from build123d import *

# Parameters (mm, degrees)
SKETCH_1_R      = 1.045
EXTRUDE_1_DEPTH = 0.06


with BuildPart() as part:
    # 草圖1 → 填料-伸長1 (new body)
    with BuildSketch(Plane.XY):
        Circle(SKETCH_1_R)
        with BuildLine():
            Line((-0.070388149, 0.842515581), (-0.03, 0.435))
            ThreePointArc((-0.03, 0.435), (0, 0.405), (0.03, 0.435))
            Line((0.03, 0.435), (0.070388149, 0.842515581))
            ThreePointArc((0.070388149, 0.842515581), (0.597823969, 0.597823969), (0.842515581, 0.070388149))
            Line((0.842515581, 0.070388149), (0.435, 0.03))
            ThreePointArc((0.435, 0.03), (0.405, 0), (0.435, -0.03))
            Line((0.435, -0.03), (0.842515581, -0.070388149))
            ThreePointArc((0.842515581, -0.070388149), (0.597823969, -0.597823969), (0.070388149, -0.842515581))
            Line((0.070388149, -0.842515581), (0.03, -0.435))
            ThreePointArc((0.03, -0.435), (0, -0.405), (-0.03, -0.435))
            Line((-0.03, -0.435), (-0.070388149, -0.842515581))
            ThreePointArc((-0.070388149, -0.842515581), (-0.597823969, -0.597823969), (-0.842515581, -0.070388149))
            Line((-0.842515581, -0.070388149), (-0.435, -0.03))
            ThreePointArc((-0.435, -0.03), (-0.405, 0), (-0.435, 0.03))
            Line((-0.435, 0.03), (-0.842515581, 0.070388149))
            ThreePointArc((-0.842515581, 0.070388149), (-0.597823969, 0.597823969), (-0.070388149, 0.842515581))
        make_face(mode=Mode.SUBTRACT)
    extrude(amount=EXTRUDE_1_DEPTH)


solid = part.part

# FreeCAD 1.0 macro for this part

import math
import FreeCAD as App
import Part
import Sketcher
from FreeCAD import Vector
Q = App.Units.Quantity

doc = App.newDocument("Part")
params = doc.addObject("Spreadsheet::Sheet", "Params")
for row, (alias, value) in enumerate([
    ("sketch1_diameter", "2.09 mm"),
    ("sketch1_radius", "0.03 mm"),
    ("pad1_length", "0.06 mm"),
], start=1):
    params.set(f"A{row}", alias)
    params.set(f"B{row}", "=" + value)
    params.setAlias(f"B{row}", alias)

body = doc.addObject("PartDesign::Body", "Body")

sketch1 = body.newObject("Sketcher::SketchObject", "Sketch")
sketch1.AttachmentSupport = (doc.getObject("XY_Plane"), [""])
sketch1.MapMode = "FlatFace"
sketch1.addGeometry([
    Part.Circle(Vector(0, 0, 0), Vector(0, 0, 1), 1.045),
    Part.ArcOfCircle(Part.Circle(Vector(0, 0, 0), Vector(0, 0, 1), 0.845), math.radians(95), math.radians(175)),
    Part.LineSegment(Vector(-0.07, 0.843, 0), Vector(-0.03, 0.435, 0)),
    Part.ArcOfCircle(Part.Circle(Vector(0, 0.435, 0), Vector(0, 0, 1), 0.03), math.radians(180), math.radians(360)),
    Part.LineSegment(Vector(0.03, 0.435, 0), Vector(0.07, 0.843, 0)),
    Part.ArcOfCircle(Part.Circle(Vector(0, 0, 0), Vector(0, 0, 1), 0.845), math.radians(5), math.radians(85)),
    Part.LineSegment(Vector(0.843, 0.07, 0), Vector(0.435, 0.03, 0)),
    Part.ArcOfCircle(Part.Circle(Vector(0.435, 0, 0), Vector(0, 0, 1), 0.03), math.radians(90), math.radians(270)),
    Part.LineSegment(Vector(0.435, -0.03, 0), Vector(0.843, -0.07, 0)),
    Part.ArcOfCircle(Part.Circle(Vector(0, 0, 0), Vector(0, 0, 1), 0.845), math.radians(-85), math.radians(-5)),
    Part.LineSegment(Vector(0.07, -0.843, 0), Vector(0.03, -0.435, 0)),
    Part.ArcOfCircle(Part.Circle(Vector(0, -0.435, 0), Vector(0, 0, 1), 0.03), math.radians(0), math.radians(180)),
    Part.LineSegment(Vector(-0.03, -0.435, 0), Vector(-0.07, -0.843, 0)),
    Part.ArcOfCircle(Part.Circle(Vector(0, 0, 0), Vector(0, 0, 1), 0.845), math.radians(-175), math.radians(-95)),
    Part.LineSegment(Vector(-0.843, -0.07, 0), Vector(-0.435, -0.03, 0)),
    Part.ArcOfCircle(Part.Circle(Vector(-0.435, 0, 0), Vector(0, 0, 1), 0.03), math.radians(-90), math.radians(90)),
    Part.LineSegment(Vector(-0.435, 0.03, 0), Vector(-0.843, 0.07, 0)),
], False)
sketch1.addConstraint([
    Sketcher.Constraint("Coincident", 1, 1, 2, 1),
    Sketcher.Constraint("Coincident", 2, 2, 3, 1),
    Sketcher.Constraint("Coincident", 3, 2, 4, 1),
    Sketcher.Constraint("Coincident", 4, 2, 5, 2),
    Sketcher.Constraint("Coincident", 5, 1, 6, 1),
    Sketcher.Constraint("Coincident", 6, 2, 7, 1),
    Sketcher.Constraint("Coincident", 7, 2, 8, 1),
    Sketcher.Constraint("Coincident", 8, 2, 9, 2),
    Sketcher.Constraint("Coincident", 9, 1, 10, 1),
    Sketcher.Constraint("Coincident", 10, 2, 11, 1),
    Sketcher.Constraint("Coincident", 11, 2, 12, 1),
    Sketcher.Constraint("Coincident", 12, 2, 13, 2),
    Sketcher.Constraint("Coincident", 13, 1, 14, 1),
    Sketcher.Constraint("Coincident", 14, 2, 15, 1),
    Sketcher.Constraint("Coincident", 15, 2, 16, 1),
    Sketcher.Constraint("Coincident", 16, 2, 1, 2),
    Sketcher.Constraint("Coincident", 0, 3, -1, 1),
    Sketcher.Constraint("Coincident", 1, 3, -1, 1),
    Sketcher.Constraint("Coincident", 5, 3, -1, 1),
    Sketcher.Constraint("Coincident", 9, 3, -1, 1),
    Sketcher.Constraint("Coincident", 13, 3, -1, 1),
    Sketcher.Constraint("Equal", 1, 5),
    Sketcher.Constraint("Equal", 3, 7),
    Sketcher.Constraint("Equal", 5, 9),
    Sketcher.Constraint("Equal", 7, 11),
    Sketcher.Constraint("Equal", 9, 13),
    Sketcher.Constraint("Equal", 11, 15),
    Sketcher.Constraint("Symmetric", 3, 3, 11, 3, -1, 1),
    Sketcher.Constraint("Symmetric", 7, 3, 15, 3, -1, 1),
    Sketcher.Constraint("Symmetric", 2, 2, 3, 2, -2),
    Sketcher.Constraint("Symmetric", 7, 2, 14, 2, -2),
    Sketcher.Constraint("Perpendicular", 2, 6),
    Sketcher.Constraint("Perpendicular", 4, 8),
    Sketcher.Constraint("Perpendicular", 6, 10),
    Sketcher.Constraint("Perpendicular", 8, 12),
    Sketcher.Constraint("Perpendicular", 10, 14),
    Sketcher.Constraint("Perpendicular", 12, 16),
    Sketcher.Constraint("Horizontal", 3, 3, 2, 2),
    Sketcher.Constraint("Horizontal", 1, 1, 4, 2),
    Sketcher.Constraint("Horizontal", 11, 3, 10, 2),
    Sketcher.Constraint("Horizontal", 10, 2, 11, 2),
    Sketcher.Constraint("Horizontal", 5, 1, 16, 2),
    Sketcher.Constraint("Vertical", 7, 3, 6, 2),
    Sketcher.Constraint("Vertical", 6, 2, 7, 2),
    Sketcher.Constraint("Equal", 4, 6),
    Sketcher.Constraint("Diameter", 0, Q("2.09 mm")),
    Sketcher.Constraint("Radius", 3, Q("0.03 mm")),
    Sketcher.Constraint("Angle", 2, Q("-84.34 deg")),
    Sketcher.Constraint("Radius", 1, Q("0.845451 mm")),
    Sketcher.Constraint("DistanceY", -1, 1, 3, 3, Q("0.435 mm")),
])
sketch1.setExpression("Constraints[45]", "Params.sketch1_diameter")
sketch1.setExpression("Constraints[46]", "Params.sketch1_radius")
pad1 = body.newObject("PartDesign::Pad", "Pad")
pad1.Profile = sketch1
pad1.setExpression("Length", "Params.pad1_length")

doc.recompute()
